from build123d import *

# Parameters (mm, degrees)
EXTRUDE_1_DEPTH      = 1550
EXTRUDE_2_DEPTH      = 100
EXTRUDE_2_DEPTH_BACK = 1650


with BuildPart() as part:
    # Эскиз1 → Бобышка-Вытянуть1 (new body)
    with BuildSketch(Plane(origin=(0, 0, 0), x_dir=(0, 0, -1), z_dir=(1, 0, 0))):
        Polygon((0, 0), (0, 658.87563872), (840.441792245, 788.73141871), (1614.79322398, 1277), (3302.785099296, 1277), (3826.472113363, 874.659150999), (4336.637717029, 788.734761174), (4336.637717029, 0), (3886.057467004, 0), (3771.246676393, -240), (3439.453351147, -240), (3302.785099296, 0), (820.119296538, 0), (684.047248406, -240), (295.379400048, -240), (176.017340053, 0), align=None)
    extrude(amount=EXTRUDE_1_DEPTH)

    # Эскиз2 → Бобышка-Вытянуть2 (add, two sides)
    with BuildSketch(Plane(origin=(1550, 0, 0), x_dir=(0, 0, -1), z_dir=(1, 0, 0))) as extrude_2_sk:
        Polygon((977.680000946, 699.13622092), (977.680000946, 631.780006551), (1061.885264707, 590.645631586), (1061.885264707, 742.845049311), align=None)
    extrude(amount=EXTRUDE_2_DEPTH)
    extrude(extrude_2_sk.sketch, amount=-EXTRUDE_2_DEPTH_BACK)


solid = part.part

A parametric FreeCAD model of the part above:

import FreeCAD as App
import Part
import Sketcher
Q = App.Units.Quantity


def add_polygon(sketch, points):
    """Adds a closed chain of lines whose ends are joined by coincident constraints."""
    first, n = sketch.GeometryCount, len(points)
    for a, b in zip(points, points[1:] + points[:1]):
        sketch.addGeometry(Part.LineSegment(App.Vector(*a, 0), App.Vector(*b, 0)), False)
    for i in range(n):
        sketch.addConstraint(Sketcher.Constraint("Coincident", first + i, 2, first + (i + 1) % n, 1))

doc = App.newDocument("Part")
body = doc.addObject("PartDesign::Body", "Body")

# Sketch on YZ plane
sketch1 = body.newObject("Sketcher::SketchObject", "Sketch")
sketch1.AttachmentSupport = (doc.getObject("YZ_Plane"), [""])
sketch1.MapMode = "FlatFace"
add_polygon(sketch1, [(659, 0), (0, 0), (0, -176), (-240, -295), (-240, -684), (0, -820), (0, -3303), (-240, -3439), (-240, -3771), (0, -3886), (0, -4337), (789, -4337), (875, -3826), (1277, -3303), (1277, -1615), (789, -840)])  # lines 0-15
sketch1.addConstraint(Sketcher.Constraint("Horizontal", 0))
sketch1.addConstraint(Sketcher.Constraint("Vertical", 1))
sketch1.addConstraint(Sketcher.Constraint("Vertical", 3))
sketch1.addConstraint(Sketcher.Constraint("Vertical", 5))
sketch1.addConstraint(Sketcher.Constraint("Vertical", 7))
sketch1.addConstraint(Sketcher.Constraint("Vertical", 9))
sketch1.addConstraint(Sketcher.Constraint("Horizontal", 10))
sketch1.addConstraint(Sketcher.Constraint("Vertical", 13))
sketch1.addConstraint(Sketcher.Constraint("Coincident", 0, 2, -1, 1))
sketch1.addConstraint(Sketcher.Constraint("PointOnObject", 4, 2, -2))
sketch1.addConstraint(Sketcher.Constraint("PointOnObject", 8, 2, -2))
sketch1.addConstraint(Sketcher.Constraint("Horizontal", 5, 2, 12, 2))
sketch1.addConstraint(Sketcher.Constraint("Vertical", 3, 2, 6, 2))
sketch1.addConstraint(Sketcher.Constraint("DistanceX", 2, 2, -1, 1, Q("240 mm")))
sketch1.addConstraint(Sketcher.Constraint("DistanceX", -1, 1, 12, 2, Q("1277 mm")))
sketch1.addConstraint(Sketcher.Constraint("DistanceX", 0, 2, 0, 1, Q("658.875639 mm")))
sketch1.addConstraint(Sketcher.Constraint("DistanceX", 10, 1, 10, 2, Q("788.734761 mm")))
sketch1.addConstraint(Sketcher.Constraint("DistanceY", 1, 2, 1, 1, Q("176.01734 mm")))
sketch1.addConstraint(Sketcher.Constraint("DistanceY", 3, 2, 3, 1, Q("388.667848 mm")))
sketch1.addConstraint(Sketcher.Constraint("DistanceY", 9, 2, 9, 1, Q("450.58025 mm")))
sketch1.addConstraint(Sketcher.Constraint("DistanceY", 2, 2, -1, 1, Q("295.3794 mm")))
sketch1.addConstraint(Sketcher.Constraint("DistanceY", 5, 2, -1, 1, Q("3302.785099 mm")))
sketch1.addConstraint(Sketcher.Constraint("Distance", 8, Q("266.047961 mm")))
sketch1.addConstraint(Sketcher.Constraint("Distance", 11, Q("517.350891 mm")))
sketch1.addConstraint(Sketcher.Constraint("Distance", 12, Q("660.398552 mm")))
sketch1.addConstraint(Sketcher.Constraint("Distance", 14, Q("915.43779 mm")))
sketch1.addConstraint(Sketcher.Constraint("DistanceY", 5, 2, 5, 1, Q("2482.665803 mm")))
sketch1.addConstraint(Sketcher.Constraint("DistanceY", 7, 2, 7, 1, Q("331.793325 mm")))
sketch1.addConstraint(Sketcher.Constraint("DistanceY", 13, 1, 13, 2, Q("1687.991875 mm")))
sketch1.addConstraint(Sketcher.Constraint("DistanceY", 6, 2, -1, 1, Q("3439.453351 mm")))
sketch1.addConstraint(Sketcher.Constraint("DistanceX", -1, 1, 14, 2, Q("788.731419 mm")))
pad1 = body.newObject("PartDesign::Pad", "Pad")
pad1.Profile = sketch1
pad1.Length = 1550

# Sketch on YZ plane
sketch2 = body.newObject("Sketcher::SketchObject", "Sketch001")
sketch2.AttachmentSupport = (doc.getObject("YZ_Plane"), [""])
sketch2.MapMode = "FlatFace"
sketch2.AttachmentOffset = App.Placement(App.Vector(0, 0, 1550), App.Rotation())
add_polygon(sketch2, [(699, -978), (632, -978), (591, -1062), (743, -1062)])  # lines 0-3
sketch2.addConstraint(Sketcher.Constraint("Horizontal", 0))
sketch2.addConstraint(Sketcher.Constraint("Horizontal", 2))
sketch2.addConstraint(Sketcher.Constraint("DistanceY", 0, 2, -1, 1, Q("977.680001 mm")))
sketch2.addConstraint(Sketcher.Constraint("Distance", 1, Q("93.715331 mm")))
sketch2.addConstraint(Sketcher.Constraint("DistanceX", 0, 2, 0, 1, Q("67.356214 mm")))
sketch2.addConstraint(Sketcher.Constraint("DistanceX", 2, 1, 2, 2, Q("152.199418 mm")))
sketch2.addConstraint(Sketcher.Constraint("DistanceX", -1, 1, 1, 2, Q("590.645632 mm")))
sketch2.addConstraint(Sketcher.Constraint("DistanceX", -1, 1, 3, 2, Q("699.136221 mm")))
pad2 = body.newObject("PartDesign::Pad", "Pad001")
pad2.Profile = sketch2
pad2.Type = "TwoLengths"
pad2.Length = 100
pad2.Length2 = 1650

doc.recompute()
